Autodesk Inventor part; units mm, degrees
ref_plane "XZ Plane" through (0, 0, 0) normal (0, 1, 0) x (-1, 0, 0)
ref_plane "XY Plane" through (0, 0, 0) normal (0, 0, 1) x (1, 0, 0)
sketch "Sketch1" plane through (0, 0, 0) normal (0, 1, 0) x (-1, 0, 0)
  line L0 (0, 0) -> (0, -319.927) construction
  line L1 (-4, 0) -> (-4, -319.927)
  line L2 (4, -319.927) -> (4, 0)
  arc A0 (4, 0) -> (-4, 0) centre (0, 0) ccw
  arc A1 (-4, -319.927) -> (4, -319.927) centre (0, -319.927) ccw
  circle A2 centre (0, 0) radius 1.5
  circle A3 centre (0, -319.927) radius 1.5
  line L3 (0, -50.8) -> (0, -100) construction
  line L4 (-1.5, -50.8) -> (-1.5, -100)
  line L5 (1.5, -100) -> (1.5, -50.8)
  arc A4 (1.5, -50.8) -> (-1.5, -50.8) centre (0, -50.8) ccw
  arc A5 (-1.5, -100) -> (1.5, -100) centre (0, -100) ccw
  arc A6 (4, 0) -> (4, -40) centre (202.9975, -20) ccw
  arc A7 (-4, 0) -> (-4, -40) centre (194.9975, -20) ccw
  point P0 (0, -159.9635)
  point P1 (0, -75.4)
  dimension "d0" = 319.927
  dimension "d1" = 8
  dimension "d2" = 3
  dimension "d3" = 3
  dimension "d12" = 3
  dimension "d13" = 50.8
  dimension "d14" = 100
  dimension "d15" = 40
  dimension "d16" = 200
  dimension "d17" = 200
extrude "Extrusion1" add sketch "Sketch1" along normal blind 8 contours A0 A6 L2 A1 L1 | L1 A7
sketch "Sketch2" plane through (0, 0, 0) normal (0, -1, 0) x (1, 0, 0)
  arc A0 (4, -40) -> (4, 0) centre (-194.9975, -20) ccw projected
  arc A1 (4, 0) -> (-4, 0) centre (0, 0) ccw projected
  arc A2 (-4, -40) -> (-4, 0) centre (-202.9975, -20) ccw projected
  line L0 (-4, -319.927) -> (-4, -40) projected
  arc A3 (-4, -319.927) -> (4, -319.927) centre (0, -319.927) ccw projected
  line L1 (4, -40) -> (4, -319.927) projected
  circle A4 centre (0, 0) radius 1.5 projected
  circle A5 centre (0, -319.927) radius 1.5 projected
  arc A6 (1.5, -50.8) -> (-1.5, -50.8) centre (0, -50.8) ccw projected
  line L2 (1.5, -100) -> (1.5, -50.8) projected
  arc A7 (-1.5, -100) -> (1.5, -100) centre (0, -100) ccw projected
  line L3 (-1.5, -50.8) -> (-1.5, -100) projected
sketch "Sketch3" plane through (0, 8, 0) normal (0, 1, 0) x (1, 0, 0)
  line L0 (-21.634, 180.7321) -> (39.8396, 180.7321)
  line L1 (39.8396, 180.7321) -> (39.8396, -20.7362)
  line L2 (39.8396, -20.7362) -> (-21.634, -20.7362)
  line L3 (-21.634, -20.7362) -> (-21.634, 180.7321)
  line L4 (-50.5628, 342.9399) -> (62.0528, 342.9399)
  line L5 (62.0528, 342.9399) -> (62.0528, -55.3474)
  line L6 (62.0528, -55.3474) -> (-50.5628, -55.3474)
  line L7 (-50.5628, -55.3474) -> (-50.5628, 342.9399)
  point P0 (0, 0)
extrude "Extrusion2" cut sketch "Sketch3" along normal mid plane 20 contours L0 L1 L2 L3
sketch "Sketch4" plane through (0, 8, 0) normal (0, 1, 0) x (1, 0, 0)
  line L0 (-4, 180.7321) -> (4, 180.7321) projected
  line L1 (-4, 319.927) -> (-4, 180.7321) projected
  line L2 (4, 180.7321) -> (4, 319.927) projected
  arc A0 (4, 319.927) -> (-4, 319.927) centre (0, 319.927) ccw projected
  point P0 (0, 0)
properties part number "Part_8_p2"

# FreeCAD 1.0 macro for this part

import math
import FreeCAD as App
import Part
import Sketcher

V = App.Vector
Q = App.Units.Quantity


def add_polygon(sketch, points):
    """Adds a closed chain of lines whose ends are joined by coincident constraints."""
    first, n = sketch.GeometryCount, len(points)
    for a, b in zip(points, points[1:] + points[:1]):
        sketch.addGeometry(Part.LineSegment(App.Vector(*a, 0), App.Vector(*b, 0)), False)
    for i in range(n):
        sketch.addConstraint(Sketcher.Constraint("Coincident", first + i, 2, first + (i + 1) % n, 1))

doc = App.newDocument("Part")
body = doc.addObject("PartDesign::Body", "Body")

# Sketch on XZ plane
sketch1 = body.newObject("Sketcher::SketchObject", "Sketch")
sketch1.AttachmentSupport = (doc.getObject("XZ_Plane"), [""])
sketch1.MapMode = "FlatFace"
sketch1.addGeometry(Part.ArcOfCircle(Part.Circle(V(0, 0, 0), V(0, 0, 1), 4), math.radians(0), math.radians(180)), False)
sketch1.addGeometry(Part.ArcOfCircle(Part.Circle(V(-195, -20, 0), V(0, 0, 1), 200), math.radians(-5.74), math.radians(5.74)), False)
sketch1.addGeometry(Part.LineSegment(V(4, -40, 0), V(4, -319.9, 0)), False)
sketch1.addGeometry(Part.ArcOfCircle(Part.Circle(V(0, -319.9, 0), V(0, 0, 1), 4), math.radians(180), math.radians(360)), False)
sketch1.addGeometry(Part.LineSegment(V(-4, -319.9, 0), V(-4, -40, 0)), False)
sketch1.addGeometry(Part.ArcOfCircle(Part.Circle(V(-203, -20, 0), V(0, 0, 1), 200), math.radians(-5.74), math.radians(5.74)), False)
sketch1.addGeometry(Part.Circle(V(0, -319.9, 0), V(0, 0, 1), 1.5), False)
sketch1.addGeometry(Part.LineSegment(V(1.5, -100, 0), V(1.5, -50.8, 0)), False)
sketch1.addGeometry(Part.ArcOfCircle(Part.Circle(V(0, -50.8, 0), V(0, 0, 1), 1.5), math.radians(0), math.radians(180)), False)
sketch1.addGeometry(Part.LineSegment(V(-1.5, -50.8, 0), V(-1.5, -100, 0)), False)
sketch1.addGeometry(Part.ArcOfCircle(Part.Circle(V(0, -100, 0), V(0, 0, 1), 1.5), math.radians(180), math.radians(360)), False)
sketch1.addGeometry(Part.Circle(V(0, 0, 0), V(0, 0, 1), 1.5), False)
sketch1.addConstraint(Sketcher.Constraint("Coincident", 0, 1, 1, 2))
sketch1.addConstraint(Sketcher.Constraint("Coincident", 1, 1, 2, 1))
sketch1.addConstraint(Sketcher.Constraint("Tangent", 2, 2, 3, 2))
sketch1.addConstraint(Sketcher.Constraint("Tangent", 3, 1, 4, 1))
sketch1.addConstraint(Sketcher.Constraint("Coincident", 4, 2, 5, 1))
sketch1.addConstraint(Sketcher.Constraint("Coincident", 5, 2, 0, 2))
sketch1.addConstraint(Sketcher.Constraint("Tangent", 7, 2, 8, 1))
sketch1.addConstraint(Sketcher.Constraint("Tangent", 8, 2, 9, 1))
sketch1.addConstraint(Sketcher.Constraint("Tangent", 9, 2, 10, 1))
sketch1.addConstraint(Sketcher.Constraint("Tangent", 10, 2, 7, 1))
sketch1.addConstraint(Sketcher.Constraint("Vertical", 2))
sketch1.addConstraint(Sketcher.Constraint("Vertical", 4))
sketch1.addConstraint(Sketcher.Constraint("Vertical", 7))
sketch1.addConstraint(Sketcher.Constraint("Vertical", 9))
sketch1.addConstraint(Sketcher.Constraint("Coincident", 0, 3, -1, 1))
sketch1.addConstraint(Sketcher.Constraint("Coincident", 11, 3, -1, 1))
sketch1.addConstraint(Sketcher.Constraint("Coincident", 6, 3, 3, 3))
sketch1.addConstraint(Sketcher.Constraint("Equal", 0, 3))
sketch1.addConstraint(Sketcher.Constraint("Equal", 1, 5))
sketch1.addConstraint(Sketcher.Constraint("Equal", 6, 8))
sketch1.addConstraint(Sketcher.Constraint("Equal", 10, 11))
sketch1.addConstraint(Sketcher.Constraint("Symmetric", 1, 1, 4, 2, -2))
sketch1.addConstraint(Sketcher.Constraint("PointOnObject", 8, 3, -2))
sketch1.addConstraint(Sketcher.Constraint("PointOnObject", 0, 1, -1))
sketch1.addConstraint(Sketcher.Constraint("PointOnObject", 5, 2, -1))
sketch1.addConstraint(Sketcher.Constraint("Diameter", 6, Q("3 mm")))
sketch1.addConstraint(Sketcher.Constraint("Radius", 0, Q("4 mm")))
sketch1.addConstraint(Sketcher.Constraint("Radius", 1, Q("200 mm")))
sketch1.addConstraint(Sketcher.Constraint("DistanceY", 10, 3, -1, 1, Q("100 mm")))
sketch1.addConstraint(Sketcher.Constraint("DistanceY", 1, 1, -1, 1, Q("40 mm")))
sketch1.addConstraint(Sketcher.Constraint("DistanceY", 8, 3, -1, 1, Q("50.8 mm")))
sketch1.addConstraint(Sketcher.Constraint("DistanceY", 3, 3, -1, 1, Q("319.927 mm")))
pad1 = body.newObject("PartDesign::Pad", "Pad")
pad1.Profile = sketch1
pad1.Length = 8
pad1.Reversed = True

# Sketch on XZ plane
sketch2 = body.newObject("Sketcher::SketchObject", "Sketch001")
sketch2.AttachmentSupport = (doc.getObject("XZ_Plane"), [""])
sketch2.MapMode = "FlatFace"
sketch2.AttachmentOffset = App.Placement(V(0, 0, -8), App.Rotation())
add_polygon(sketch2, [(40, -181), (-22, -181), (-22, 21), (40, 21)])  # lines 0-3
sketch2.addConstraint(Sketcher.Constraint("Horizontal", 0))
sketch2.addConstraint(Sketcher.Constraint("Vertical", 1))
sketch2.addConstraint(Sketcher.Constraint("Horizontal", 2))
sketch2.addConstraint(Sketcher.Constraint("Vertical", 3))
sketch2.addConstraint(Sketcher.Constraint("DistanceX", 0, 2, 0, 1, Q("61.4736 mm")))
sketch2.addConstraint(Sketcher.Constraint("DistanceY", 1, 1, 1, 2, Q("201.4683 mm")))
sketch2.addConstraint(Sketcher.Constraint("DistanceX", 0, 2, -1, 1, Q("21.634 mm")))
sketch2.addConstraint(Sketcher.Constraint("DistanceY", 0, 2, -1, 1, Q("180.732 mm")))
pocket1 = body.newObject("PartDesign::Pocket", "Pocket")
pocket1.Profile = sketch2
pocket1.Length = 20
pocket1.Midplane = True

doc.recompute()
